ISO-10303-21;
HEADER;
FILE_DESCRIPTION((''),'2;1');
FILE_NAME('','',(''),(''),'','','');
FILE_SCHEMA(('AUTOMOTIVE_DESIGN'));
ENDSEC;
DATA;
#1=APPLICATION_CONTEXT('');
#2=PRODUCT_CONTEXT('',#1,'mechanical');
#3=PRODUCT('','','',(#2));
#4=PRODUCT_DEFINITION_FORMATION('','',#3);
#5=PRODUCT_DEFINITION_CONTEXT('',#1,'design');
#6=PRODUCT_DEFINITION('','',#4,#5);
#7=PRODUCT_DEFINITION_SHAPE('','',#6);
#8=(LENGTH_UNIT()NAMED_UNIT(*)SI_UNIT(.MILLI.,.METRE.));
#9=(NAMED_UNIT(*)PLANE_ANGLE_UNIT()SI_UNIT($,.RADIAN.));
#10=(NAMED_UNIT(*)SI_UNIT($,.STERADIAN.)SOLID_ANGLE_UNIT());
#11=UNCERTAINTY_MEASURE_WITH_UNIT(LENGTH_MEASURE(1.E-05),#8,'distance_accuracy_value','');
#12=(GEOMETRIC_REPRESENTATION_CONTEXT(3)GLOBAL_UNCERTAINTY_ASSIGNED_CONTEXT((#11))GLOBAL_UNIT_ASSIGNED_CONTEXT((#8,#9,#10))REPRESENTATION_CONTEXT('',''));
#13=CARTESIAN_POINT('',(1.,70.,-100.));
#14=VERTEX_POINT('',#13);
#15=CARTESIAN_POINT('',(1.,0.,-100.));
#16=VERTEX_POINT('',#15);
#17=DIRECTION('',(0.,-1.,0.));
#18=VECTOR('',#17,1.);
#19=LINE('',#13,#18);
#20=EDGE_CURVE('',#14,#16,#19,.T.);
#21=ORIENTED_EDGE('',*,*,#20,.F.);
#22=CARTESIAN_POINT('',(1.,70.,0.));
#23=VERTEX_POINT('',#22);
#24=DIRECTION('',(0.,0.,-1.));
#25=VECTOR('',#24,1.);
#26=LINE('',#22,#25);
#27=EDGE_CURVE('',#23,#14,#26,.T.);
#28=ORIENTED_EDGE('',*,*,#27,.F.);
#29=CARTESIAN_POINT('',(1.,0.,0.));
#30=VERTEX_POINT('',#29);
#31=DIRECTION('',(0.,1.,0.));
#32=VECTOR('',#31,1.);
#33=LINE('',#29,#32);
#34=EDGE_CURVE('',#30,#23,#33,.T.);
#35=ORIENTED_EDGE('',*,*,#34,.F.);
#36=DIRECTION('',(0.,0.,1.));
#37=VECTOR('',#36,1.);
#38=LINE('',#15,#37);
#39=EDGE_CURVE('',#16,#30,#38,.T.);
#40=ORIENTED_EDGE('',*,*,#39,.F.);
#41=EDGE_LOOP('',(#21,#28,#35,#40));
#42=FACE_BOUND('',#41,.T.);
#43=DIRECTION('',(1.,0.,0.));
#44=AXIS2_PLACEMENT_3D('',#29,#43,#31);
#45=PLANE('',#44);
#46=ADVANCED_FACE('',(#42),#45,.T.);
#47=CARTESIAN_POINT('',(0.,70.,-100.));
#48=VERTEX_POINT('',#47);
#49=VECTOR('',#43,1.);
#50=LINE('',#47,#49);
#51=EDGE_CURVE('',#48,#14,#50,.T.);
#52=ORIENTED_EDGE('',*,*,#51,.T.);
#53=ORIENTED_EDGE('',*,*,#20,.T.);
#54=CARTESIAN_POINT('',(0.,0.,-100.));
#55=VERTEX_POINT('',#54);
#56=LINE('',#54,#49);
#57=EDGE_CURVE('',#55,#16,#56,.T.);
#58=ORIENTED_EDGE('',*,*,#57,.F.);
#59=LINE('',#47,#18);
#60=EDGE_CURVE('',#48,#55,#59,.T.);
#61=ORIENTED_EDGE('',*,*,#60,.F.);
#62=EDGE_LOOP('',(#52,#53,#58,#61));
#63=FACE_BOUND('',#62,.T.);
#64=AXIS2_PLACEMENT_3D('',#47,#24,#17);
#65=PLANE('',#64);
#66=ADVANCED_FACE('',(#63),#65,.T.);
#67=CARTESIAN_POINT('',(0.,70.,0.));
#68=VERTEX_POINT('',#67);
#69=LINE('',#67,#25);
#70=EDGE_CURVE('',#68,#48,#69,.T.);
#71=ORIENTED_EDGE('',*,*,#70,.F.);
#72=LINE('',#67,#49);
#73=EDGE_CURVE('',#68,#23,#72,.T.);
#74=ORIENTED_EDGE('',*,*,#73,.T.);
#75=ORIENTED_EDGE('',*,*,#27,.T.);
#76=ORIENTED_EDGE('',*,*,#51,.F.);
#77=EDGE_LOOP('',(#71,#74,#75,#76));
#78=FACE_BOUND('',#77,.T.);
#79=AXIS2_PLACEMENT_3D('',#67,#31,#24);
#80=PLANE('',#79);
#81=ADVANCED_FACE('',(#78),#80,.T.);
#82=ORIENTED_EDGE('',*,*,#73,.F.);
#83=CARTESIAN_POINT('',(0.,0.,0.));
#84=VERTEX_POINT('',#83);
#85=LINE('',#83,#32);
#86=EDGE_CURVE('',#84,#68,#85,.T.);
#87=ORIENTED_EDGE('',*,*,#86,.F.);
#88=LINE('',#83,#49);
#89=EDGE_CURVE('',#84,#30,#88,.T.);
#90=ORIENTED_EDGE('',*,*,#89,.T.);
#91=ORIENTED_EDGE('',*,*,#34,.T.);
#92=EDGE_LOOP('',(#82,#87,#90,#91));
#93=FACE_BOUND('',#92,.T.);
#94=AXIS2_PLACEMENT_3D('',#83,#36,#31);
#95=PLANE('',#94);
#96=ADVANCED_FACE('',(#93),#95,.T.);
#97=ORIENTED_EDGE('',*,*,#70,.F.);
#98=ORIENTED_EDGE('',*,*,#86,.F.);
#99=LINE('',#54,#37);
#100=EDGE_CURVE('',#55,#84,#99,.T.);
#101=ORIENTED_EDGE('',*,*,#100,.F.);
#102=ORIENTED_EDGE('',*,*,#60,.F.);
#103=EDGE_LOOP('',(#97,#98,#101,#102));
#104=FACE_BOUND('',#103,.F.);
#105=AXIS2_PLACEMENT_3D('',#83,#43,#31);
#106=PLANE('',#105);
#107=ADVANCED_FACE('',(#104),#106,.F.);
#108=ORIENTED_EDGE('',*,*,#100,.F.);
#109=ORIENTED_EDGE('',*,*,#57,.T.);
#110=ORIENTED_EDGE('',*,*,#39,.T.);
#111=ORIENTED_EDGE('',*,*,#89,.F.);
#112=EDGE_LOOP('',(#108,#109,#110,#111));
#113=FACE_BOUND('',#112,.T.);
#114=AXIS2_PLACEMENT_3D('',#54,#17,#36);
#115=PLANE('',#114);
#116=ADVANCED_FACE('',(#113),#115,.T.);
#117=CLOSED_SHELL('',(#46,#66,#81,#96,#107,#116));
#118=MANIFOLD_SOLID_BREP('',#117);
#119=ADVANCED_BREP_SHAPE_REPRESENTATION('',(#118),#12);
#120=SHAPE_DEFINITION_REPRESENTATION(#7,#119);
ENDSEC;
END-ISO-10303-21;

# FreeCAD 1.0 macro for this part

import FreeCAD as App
import Part
import Sketcher
Q = App.Units.Quantity

doc = App.newDocument("Part")
body = doc.addObject("PartDesign::Body", "Body")

# Sketch on YZ plane
sketch1 = doc.addObject("Sketcher::SketchObject", "Sketch")
body.addObject(sketch1)
sketch1.AttachmentSupport = (doc.YZ_Plane, [""])
sketch1.MapMode = "FlatFace"
sketch1.addGeometry(Part.LineSegment(App.Vector(70, 0, 0), App.Vector(0, 0, 0)), False)
sketch1.addGeometry(Part.LineSegment(App.Vector(0, 0, 0), App.Vector(0, -100, 0)), False)
sketch1.addGeometry(Part.LineSegment(App.Vector(0, -100, 0), App.Vector(70, -100, 0)), False)
sketch1.addGeometry(Part.LineSegment(App.Vector(70, -100, 0), App.Vector(70, 0, 0)), False)
sketch1.addConstraint(Sketcher.Constraint("Coincident", 0, 2, 1, 1))
sketch1.addConstraint(Sketcher.Constraint("Coincident", 1, 2, 2, 1))
sketch1.addConstraint(Sketcher.Constraint("Coincident", 2, 2, 3, 1))
sketch1.addConstraint(Sketcher.Constraint("Coincident", 3, 2, 0, 1))
sketch1.addConstraint(Sketcher.Constraint("Horizontal", 0))
sketch1.addConstraint(Sketcher.Constraint("Vertical", 1))
sketch1.addConstraint(Sketcher.Constraint("Horizontal", 2))
sketch1.addConstraint(Sketcher.Constraint("Vertical", 3))
sketch1.addConstraint(Sketcher.Constraint("Coincident", 0, 2, -1, 1))
sketch1.addConstraint(Sketcher.Constraint("DistanceX", 0, 2, 0, 1, Q("70 mm")))
sketch1.addConstraint(Sketcher.Constraint("DistanceY", 1, 2, 1, 1, Q("100 mm")))
pad1 = doc.addObject("PartDesign::Pad", "Pad")
body.addObject(pad1)
pad1.Profile = sketch1
pad1.Length = 1

doc.recompute()
